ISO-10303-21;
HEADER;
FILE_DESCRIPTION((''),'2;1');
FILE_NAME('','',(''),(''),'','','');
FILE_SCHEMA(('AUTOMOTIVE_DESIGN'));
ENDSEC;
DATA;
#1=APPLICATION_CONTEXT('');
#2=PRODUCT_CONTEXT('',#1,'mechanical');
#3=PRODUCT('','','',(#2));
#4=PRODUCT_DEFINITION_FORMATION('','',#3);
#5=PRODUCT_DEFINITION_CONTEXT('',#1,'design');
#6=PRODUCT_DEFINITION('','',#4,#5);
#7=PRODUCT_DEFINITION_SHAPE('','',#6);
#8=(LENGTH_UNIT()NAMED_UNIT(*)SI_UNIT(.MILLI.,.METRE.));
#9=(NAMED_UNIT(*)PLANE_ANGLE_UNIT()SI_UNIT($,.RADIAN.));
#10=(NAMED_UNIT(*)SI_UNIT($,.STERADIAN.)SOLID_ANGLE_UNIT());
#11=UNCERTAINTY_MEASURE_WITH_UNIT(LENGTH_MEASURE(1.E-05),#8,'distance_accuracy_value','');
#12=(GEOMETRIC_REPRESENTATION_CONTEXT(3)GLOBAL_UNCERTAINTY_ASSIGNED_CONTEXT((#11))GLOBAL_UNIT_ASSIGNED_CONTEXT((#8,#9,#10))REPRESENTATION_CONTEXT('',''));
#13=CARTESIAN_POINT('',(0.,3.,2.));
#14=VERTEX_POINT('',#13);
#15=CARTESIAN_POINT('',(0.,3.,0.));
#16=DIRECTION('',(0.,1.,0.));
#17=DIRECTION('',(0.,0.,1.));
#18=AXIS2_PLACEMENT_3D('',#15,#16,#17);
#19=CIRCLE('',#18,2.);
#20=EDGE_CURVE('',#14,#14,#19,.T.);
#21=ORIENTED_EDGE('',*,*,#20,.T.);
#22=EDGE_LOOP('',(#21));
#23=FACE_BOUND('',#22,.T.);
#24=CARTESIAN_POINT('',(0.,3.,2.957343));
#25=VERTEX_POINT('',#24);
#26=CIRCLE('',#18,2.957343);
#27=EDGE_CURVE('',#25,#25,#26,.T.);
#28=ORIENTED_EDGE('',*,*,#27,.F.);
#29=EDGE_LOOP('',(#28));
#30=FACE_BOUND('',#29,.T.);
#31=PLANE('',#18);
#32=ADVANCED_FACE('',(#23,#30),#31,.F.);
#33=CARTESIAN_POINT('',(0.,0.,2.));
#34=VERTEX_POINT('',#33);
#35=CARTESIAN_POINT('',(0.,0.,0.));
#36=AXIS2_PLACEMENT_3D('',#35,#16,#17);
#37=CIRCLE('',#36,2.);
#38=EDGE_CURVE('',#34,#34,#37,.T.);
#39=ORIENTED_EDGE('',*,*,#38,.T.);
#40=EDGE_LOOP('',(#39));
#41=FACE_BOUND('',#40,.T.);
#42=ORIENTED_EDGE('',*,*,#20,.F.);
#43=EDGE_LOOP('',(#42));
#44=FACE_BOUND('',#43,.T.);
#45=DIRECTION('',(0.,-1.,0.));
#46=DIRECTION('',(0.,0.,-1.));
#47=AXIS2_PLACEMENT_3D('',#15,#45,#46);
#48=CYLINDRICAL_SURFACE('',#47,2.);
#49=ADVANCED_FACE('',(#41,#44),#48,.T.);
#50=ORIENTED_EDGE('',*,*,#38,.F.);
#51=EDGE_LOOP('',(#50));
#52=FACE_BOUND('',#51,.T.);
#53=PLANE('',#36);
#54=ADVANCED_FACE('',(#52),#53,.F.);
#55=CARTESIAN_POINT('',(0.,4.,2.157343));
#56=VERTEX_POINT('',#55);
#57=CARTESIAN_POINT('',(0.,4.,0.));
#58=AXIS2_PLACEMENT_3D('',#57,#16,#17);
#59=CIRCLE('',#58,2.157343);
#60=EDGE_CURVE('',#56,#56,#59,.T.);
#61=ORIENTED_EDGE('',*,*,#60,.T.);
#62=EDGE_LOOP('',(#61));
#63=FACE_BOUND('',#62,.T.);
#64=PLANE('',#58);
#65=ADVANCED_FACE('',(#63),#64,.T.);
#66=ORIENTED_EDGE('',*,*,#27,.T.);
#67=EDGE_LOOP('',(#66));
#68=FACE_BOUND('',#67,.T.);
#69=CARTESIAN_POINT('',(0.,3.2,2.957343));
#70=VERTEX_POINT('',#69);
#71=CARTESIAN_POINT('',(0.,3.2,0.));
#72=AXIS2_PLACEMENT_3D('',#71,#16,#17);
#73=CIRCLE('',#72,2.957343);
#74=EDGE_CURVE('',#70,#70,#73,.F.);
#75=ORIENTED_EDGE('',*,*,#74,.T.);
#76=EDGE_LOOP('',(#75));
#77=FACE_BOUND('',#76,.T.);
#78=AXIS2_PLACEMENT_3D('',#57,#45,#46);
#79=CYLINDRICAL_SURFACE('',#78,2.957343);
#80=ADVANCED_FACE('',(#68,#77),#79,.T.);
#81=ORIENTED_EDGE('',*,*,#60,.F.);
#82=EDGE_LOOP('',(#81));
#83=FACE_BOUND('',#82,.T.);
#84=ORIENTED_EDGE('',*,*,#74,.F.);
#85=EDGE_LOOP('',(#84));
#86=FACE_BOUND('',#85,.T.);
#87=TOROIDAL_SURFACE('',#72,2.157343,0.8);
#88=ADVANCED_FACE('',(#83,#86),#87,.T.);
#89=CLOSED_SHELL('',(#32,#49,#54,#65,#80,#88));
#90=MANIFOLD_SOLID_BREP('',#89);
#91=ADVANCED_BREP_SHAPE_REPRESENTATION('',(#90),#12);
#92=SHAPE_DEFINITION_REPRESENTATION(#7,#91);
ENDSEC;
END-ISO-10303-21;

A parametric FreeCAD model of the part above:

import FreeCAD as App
import Part
import Sketcher

V = App.Vector
Q = App.Units.Quantity


def edges_at(feature, points):
    """Names of the edges that pass closest to the given points."""
    edges = feature.Shape.Edges
    near = lambda p: min(range(len(edges)), key=lambda i: edges[i].distToShape(Part.Vertex(*p))[0])
    return sorted({f"Edge{near(p) + 1}" for p in points})

doc = App.newDocument("Part")
body = doc.addObject("PartDesign::Body", "Body")

# Sketch on XZ plane
sketch1 = doc.addObject("Sketcher::SketchObject", "Sketch")
body.addObject(sketch1)
sketch1.AttachmentSupport = (doc.XZ_Plane, [""])
sketch1.MapMode = "FlatFace"
sketch1.addGeometry(Part.Circle(V(0, 0, 0), V(0, 0, 1), 2), False)
sketch1.addConstraint(Sketcher.Constraint("Coincident", 0, 3, -1, 1))
sketch1.addConstraint(Sketcher.Constraint("Diameter", 0, Q("4 mm")))
pad1 = doc.addObject("PartDesign::Pad", "Pad")
body.addObject(pad1)
pad1.Profile = sketch1
pad1.Length = 3
pad1.Reversed = True

# Sketch on XZ plane
sketch2 = doc.addObject("Sketcher::SketchObject", "Sketch001")
body.addObject(sketch2)
sketch2.AttachmentSupport = (doc.XZ_Plane, [""])
sketch2.MapMode = "FlatFace"
sketch2.AttachmentOffset = App.Placement(V(0, 0, -3), App.Rotation())
sketch2.addGeometry(Part.Circle(V(0, 0, 0), V(0, 0, 1), 3), False)
sketch2.addConstraint(Sketcher.Constraint("Coincident", 0, 3, -1, 1))
sketch2.addConstraint(Sketcher.Constraint("Diameter", 0, Q("5.914685 mm")))
pad2 = doc.addObject("PartDesign::Pad", "Pad001")
body.addObject(pad2)
pad2.Profile = sketch2
pad2.Length = 1
pad2.Reversed = True
doc.recompute()

fillet = doc.addObject("PartDesign::Fillet", "Fillet")
body.addObject(fillet)
fillet.Base = (pad2, edges_at(pad2, [(0, 4, -2.957)]))
fillet.Radius = 0.8

doc.recompute()
